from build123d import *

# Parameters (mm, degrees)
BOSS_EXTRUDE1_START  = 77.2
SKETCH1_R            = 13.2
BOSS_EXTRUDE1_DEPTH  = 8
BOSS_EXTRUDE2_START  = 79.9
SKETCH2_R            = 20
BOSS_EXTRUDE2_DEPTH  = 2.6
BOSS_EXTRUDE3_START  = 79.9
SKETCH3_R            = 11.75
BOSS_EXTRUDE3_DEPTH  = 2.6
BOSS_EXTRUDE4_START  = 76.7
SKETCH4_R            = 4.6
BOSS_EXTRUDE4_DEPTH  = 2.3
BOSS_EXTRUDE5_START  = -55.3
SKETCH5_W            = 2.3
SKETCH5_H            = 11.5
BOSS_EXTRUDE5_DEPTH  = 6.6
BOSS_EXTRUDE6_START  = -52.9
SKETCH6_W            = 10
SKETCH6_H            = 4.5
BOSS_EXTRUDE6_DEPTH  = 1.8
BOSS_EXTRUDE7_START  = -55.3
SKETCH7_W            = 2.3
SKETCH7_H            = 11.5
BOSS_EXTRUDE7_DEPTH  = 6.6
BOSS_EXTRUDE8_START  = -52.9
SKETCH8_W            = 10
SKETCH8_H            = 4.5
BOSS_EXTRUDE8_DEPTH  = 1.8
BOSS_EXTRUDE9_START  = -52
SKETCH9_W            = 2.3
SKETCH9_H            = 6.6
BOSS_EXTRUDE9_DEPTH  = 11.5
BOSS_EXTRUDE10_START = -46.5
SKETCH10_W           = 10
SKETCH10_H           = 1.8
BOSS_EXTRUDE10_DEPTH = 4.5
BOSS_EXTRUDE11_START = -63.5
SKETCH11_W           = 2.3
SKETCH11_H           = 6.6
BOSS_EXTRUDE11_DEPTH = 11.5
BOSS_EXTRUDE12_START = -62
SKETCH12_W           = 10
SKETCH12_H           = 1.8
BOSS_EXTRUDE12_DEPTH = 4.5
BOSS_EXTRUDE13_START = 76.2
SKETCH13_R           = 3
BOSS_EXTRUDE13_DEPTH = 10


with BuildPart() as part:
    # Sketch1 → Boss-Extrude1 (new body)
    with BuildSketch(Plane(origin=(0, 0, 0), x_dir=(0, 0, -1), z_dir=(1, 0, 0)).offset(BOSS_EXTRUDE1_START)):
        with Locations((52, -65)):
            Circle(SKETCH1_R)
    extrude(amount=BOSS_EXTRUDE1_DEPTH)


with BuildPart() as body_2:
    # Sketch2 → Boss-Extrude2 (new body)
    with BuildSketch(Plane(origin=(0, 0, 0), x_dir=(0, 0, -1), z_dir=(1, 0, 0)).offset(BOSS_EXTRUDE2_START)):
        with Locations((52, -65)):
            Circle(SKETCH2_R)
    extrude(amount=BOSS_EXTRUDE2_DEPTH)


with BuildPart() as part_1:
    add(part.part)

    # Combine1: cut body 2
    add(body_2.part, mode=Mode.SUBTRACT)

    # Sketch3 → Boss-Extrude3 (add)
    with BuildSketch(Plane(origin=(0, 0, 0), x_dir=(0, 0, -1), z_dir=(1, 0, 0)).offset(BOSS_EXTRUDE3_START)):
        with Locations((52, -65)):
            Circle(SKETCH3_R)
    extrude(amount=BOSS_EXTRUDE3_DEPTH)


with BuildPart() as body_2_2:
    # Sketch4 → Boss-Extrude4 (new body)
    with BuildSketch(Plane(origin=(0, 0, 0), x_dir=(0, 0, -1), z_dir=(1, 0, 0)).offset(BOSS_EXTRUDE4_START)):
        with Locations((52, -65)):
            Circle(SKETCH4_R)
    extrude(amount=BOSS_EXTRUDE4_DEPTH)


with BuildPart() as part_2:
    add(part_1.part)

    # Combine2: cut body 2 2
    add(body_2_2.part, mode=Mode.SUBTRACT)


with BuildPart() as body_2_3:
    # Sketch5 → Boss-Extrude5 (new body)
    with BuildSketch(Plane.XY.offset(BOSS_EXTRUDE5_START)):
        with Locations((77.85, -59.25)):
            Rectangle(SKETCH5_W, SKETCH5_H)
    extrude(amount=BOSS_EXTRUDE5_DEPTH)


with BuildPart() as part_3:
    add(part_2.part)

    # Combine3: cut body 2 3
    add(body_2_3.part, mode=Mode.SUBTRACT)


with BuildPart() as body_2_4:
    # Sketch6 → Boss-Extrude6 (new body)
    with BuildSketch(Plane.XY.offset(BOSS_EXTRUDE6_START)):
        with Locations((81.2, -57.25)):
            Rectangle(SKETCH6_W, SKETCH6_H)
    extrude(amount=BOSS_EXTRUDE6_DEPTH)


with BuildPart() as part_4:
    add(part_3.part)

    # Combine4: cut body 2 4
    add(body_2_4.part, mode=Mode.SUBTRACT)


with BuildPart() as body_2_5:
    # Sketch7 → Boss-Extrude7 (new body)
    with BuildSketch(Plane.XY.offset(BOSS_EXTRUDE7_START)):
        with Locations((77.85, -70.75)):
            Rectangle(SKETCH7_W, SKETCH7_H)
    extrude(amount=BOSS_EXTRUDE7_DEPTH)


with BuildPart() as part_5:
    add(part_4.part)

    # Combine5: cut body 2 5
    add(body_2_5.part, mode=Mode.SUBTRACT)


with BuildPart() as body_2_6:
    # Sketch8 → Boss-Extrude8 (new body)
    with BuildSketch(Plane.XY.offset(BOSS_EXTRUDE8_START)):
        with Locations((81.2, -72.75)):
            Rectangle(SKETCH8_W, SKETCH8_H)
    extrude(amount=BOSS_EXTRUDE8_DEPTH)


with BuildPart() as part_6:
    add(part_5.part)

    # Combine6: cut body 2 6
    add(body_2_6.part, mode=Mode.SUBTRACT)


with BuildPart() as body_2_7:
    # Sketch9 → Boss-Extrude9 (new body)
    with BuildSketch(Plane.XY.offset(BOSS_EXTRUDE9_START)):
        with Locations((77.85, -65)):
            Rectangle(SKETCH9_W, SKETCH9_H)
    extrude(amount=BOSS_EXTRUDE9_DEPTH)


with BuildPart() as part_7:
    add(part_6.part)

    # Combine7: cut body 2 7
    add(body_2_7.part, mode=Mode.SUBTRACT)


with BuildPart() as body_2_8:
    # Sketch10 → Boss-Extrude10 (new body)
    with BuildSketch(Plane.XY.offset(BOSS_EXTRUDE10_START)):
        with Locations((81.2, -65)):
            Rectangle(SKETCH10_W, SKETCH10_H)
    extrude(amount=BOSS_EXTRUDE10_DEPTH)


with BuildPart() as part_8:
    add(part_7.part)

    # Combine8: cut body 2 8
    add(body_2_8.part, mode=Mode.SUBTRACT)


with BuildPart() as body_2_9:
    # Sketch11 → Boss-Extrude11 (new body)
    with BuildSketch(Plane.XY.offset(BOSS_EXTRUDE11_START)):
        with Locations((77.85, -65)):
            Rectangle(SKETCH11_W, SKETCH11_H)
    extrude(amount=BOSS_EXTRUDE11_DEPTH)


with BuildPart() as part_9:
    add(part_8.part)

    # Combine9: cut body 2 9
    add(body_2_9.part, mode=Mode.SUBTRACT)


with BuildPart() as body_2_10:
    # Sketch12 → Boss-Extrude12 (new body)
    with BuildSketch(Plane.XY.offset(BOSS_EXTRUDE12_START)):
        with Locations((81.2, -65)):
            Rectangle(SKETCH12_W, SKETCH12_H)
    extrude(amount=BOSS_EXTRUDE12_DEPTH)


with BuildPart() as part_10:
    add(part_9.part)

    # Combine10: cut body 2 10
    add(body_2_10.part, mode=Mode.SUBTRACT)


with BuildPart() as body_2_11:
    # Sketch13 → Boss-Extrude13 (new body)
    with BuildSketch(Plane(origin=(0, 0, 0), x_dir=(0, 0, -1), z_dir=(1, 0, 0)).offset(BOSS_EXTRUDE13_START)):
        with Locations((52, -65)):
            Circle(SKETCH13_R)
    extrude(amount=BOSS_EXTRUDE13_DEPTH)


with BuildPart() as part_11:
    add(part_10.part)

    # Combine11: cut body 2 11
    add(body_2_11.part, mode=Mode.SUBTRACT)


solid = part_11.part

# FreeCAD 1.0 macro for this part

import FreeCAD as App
import Part
import Sketcher
Q = App.Units.Quantity

doc = App.newDocument("Part")
body = doc.addObject("PartDesign::Body", "Body")

# Sketch on YZ plane
sketch1 = body.newObject("Sketcher::SketchObject", "Sketch")
sketch1.AttachmentSupport = (doc.getObject("YZ_Plane"), [""])
sketch1.MapMode = "FlatFace"
sketch1.AttachmentOffset = App.Placement(App.Vector(0, 0, 77.2), App.Rotation())
sketch1.addGeometry(Part.Circle(App.Vector(-65, -52, 0), App.Vector(0, 0, 1), 13), False)
sketch1.addConstraint([
    Sketcher.Constraint("Diameter", 0, Q("26.4 mm")),
    Sketcher.Constraint("DistanceX", 0, 3, -1, 1, Q("65 mm")),
    Sketcher.Constraint("DistanceY", 0, 3, -1, 1, Q("52 mm")),
])
pad1 = body.newObject("PartDesign::Pad", "Pad")
pad1.Profile = sketch1
pad1.Length = 8
body2 = doc.addObject("PartDesign::Body", "Body001")

# Sketch on YZ plane
sketch2 = body2.newObject("Sketcher::SketchObject", "Sketch001")
sketch2.AttachmentSupport = (doc.getObject("YZ_Plane001"), [""])
sketch2.MapMode = "FlatFace"
sketch2.AttachmentOffset = App.Placement(App.Vector(0, 0, 79.9), App.Rotation())
sketch2.addGeometry(Part.Circle(App.Vector(-65, -52, 0), App.Vector(0, 0, 1), 20), False)
sketch2.addConstraint([
    Sketcher.Constraint("Diameter", 0, Q("40 mm")),
    Sketcher.Constraint("DistanceX", 0, 3, -1, 1, Q("65 mm")),
    Sketcher.Constraint("DistanceY", 0, 3, -1, 1, Q("52 mm")),
])
pad2 = body2.newObject("PartDesign::Pad", "Pad001")
pad2.Profile = sketch2
pad2.Length = 2.6
body.AllowCompound = True
doc.recompute()

boolean = body.newObject("PartDesign::Boolean", "Boolean")
boolean.Type = "Cut"
boolean.addObjects([body2])

# Sketch on YZ plane
sketch3 = body.newObject("Sketcher::SketchObject", "Sketch002")
sketch3.AttachmentSupport = (doc.getObject("YZ_Plane"), [""])
sketch3.MapMode = "FlatFace"
sketch3.AttachmentOffset = App.Placement(App.Vector(0, 0, 79.9), App.Rotation())
sketch3.addGeometry(Part.Circle(App.Vector(-65, -52, 0), App.Vector(0, 0, 1), 12), False)
sketch3.addConstraint([
    Sketcher.Constraint("Diameter", 0, Q("23.5 mm")),
    Sketcher.Constraint("DistanceX", 0, 3, -1, 1, Q("65 mm")),
    Sketcher.Constraint("DistanceY", 0, 3, -1, 1, Q("52 mm")),
])
pad3 = body.newObject("PartDesign::Pad", "Pad002")
pad3.Profile = sketch3
pad3.Length = 2.6
body3 = doc.addObject("PartDesign::Body", "Body002")

# Sketch on YZ plane
sketch4 = body3.newObject("Sketcher::SketchObject", "Sketch003")
sketch4.AttachmentSupport = (doc.getObject("YZ_Plane002"), [""])
sketch4.MapMode = "FlatFace"
sketch4.AttachmentOffset = App.Placement(App.Vector(0, 0, 76.7), App.Rotation())
sketch4.addGeometry(Part.Circle(App.Vector(-65, -52, 0), App.Vector(0, 0, 1), 4.6), False)
sketch4.addConstraint([
    Sketcher.Constraint("Diameter", 0, Q("9.2 mm")),
    Sketcher.Constraint("DistanceX", 0, 3, -1, 1, Q("65 mm")),
    Sketcher.Constraint("DistanceY", 0, 3, -1, 1, Q("52 mm")),
])
pad4 = body3.newObject("PartDesign::Pad", "Pad003")
pad4.Profile = sketch4
pad4.Length = 2.3
doc.recompute()

boolean2 = body.newObject("PartDesign::Boolean", "Boolean001")
boolean2.Type = "Cut"
boolean2.addObjects([body3])
body4 = doc.addObject("PartDesign::Body", "Body003")

# Sketch on XY plane
sketch5 = body4.newObject("Sketcher::SketchObject", "Sketch004")
sketch5.AttachmentSupport = (doc.getObject("XY_Plane003"), [""])
sketch5.MapMode = "FlatFace"
sketch5.AttachmentOffset = App.Placement(App.Vector(0, 0, -55.3), App.Rotation())
sketch5.addGeometry([
    Part.LineSegment(App.Vector(76.7, -53.5, 0), App.Vector(76.7, -65, 0)),
    Part.LineSegment(App.Vector(76.7, -65, 0), App.Vector(79, -65, 0)),
    Part.LineSegment(App.Vector(79, -65, 0), App.Vector(79, -53.5, 0)),
    Part.LineSegment(App.Vector(79, -53.5, 0), App.Vector(76.7, -53.5, 0)),
], False)
sketch5.addConstraint([
    Sketcher.Constraint("Coincident", 0, 2, 1, 1),
    Sketcher.Constraint("Coincident", 1, 2, 2, 1),
    Sketcher.Constraint("Coincident", 2, 2, 3, 1),
    Sketcher.Constraint("Coincident", 3, 2, 0, 1),
    Sketcher.Constraint("Vertical", 0),
    Sketcher.Constraint("Horizontal", 1),
    Sketcher.Constraint("Vertical", 2),
    Sketcher.Constraint("Horizontal", 3),
    Sketcher.Constraint("DistanceX", 1, 1, 1, 2, Q("2.3 mm")),
    Sketcher.Constraint("DistanceY", 0, 2, 0, 1, Q("11.5 mm")),
    Sketcher.Constraint("DistanceY", 0, 2, -1, 1, Q("65 mm")),
    Sketcher.Constraint("DistanceX", -1, 1, 1, 2, Q("79 mm")),
])
pad5 = body4.newObject("PartDesign::Pad", "Pad004")
pad5.Profile = sketch5
pad5.Length = 6.6
doc.recompute()

boolean3 = body.newObject("PartDesign::Boolean", "Boolean002")
boolean3.Type = "Cut"
boolean3.addObjects([body4])
body5 = doc.addObject("PartDesign::Body", "Body004")

# Sketch on XY plane
sketch6 = body5.newObject("Sketcher::SketchObject", "Sketch005")
sketch6.AttachmentSupport = (doc.getObject("XY_Plane004"), [""])
sketch6.MapMode = "FlatFace"
sketch6.AttachmentOffset = App.Placement(App.Vector(0, 0, -52.9), App.Rotation())
sketch6.addGeometry([
    Part.LineSegment(App.Vector(76.2, -55, 0), App.Vector(76.2, -59.5, 0)),
    Part.LineSegment(App.Vector(76.2, -59.5, 0), App.Vector(86.2, -59.5, 0)),
    Part.LineSegment(App.Vector(86.2, -59.5, 0), App.Vector(86.2, -55, 0)),
    Part.LineSegment(App.Vector(86.2, -55, 0), App.Vector(76.2, -55, 0)),
], False)
sketch6.addConstraint([
    Sketcher.Constraint("Coincident", 0, 2, 1, 1),
    Sketcher.Constraint("Coincident", 1, 2, 2, 1),
    Sketcher.Constraint("Coincident", 2, 2, 3, 1),
    Sketcher.Constraint("Coincident", 3, 2, 0, 1),
    Sketcher.Constraint("Vertical", 0),
    Sketcher.Constraint("Horizontal", 1),
    Sketcher.Constraint("Vertical", 2),
    Sketcher.Constraint("Horizontal", 3),
    Sketcher.Constraint("DistanceX", 1, 1, 1, 2, Q("10 mm")),
    Sketcher.Constraint("DistanceY", 0, 2, 0, 1, Q("4.5 mm")),
    Sketcher.Constraint("DistanceY", 2, 2, -1, 1, Q("55 mm")),
    Sketcher.Constraint("DistanceX", -1, 1, 0, 2, Q("76.2 mm")),
])
pad6 = body5.newObject("PartDesign::Pad", "Pad005")
pad6.Profile = sketch6
pad6.Length = 1.8
doc.recompute()

boolean4 = body.newObject("PartDesign::Boolean", "Boolean003")
boolean4.Type = "Cut"
boolean4.addObjects([body5])
body6 = doc.addObject("PartDesign::Body", "Body005")

# Sketch on XY plane
sketch7 = body6.newObject("Sketcher::SketchObject", "Sketch006")
sketch7.AttachmentSupport = (doc.getObject("XY_Plane005"), [""])
sketch7.MapMode = "FlatFace"
sketch7.AttachmentOffset = App.Placement(App.Vector(0, 0, -55.3), App.Rotation())
sketch7.addGeometry([
    Part.LineSegment(App.Vector(76.7, -65, 0), App.Vector(76.7, -76.5, 0)),
    Part.LineSegment(App.Vector(76.7, -76.5, 0), App.Vector(79, -76.5, 0)),
    Part.LineSegment(App.Vector(79, -76.5, 0), App.Vector(79, -65, 0)),
    Part.LineSegment(App.Vector(79, -65, 0), App.Vector(76.7, -65, 0)),
], False)
sketch7.addConstraint([
    Sketcher.Constraint("Coincident", 0, 2, 1, 1),
    Sketcher.Constraint("Coincident", 1, 2, 2, 1),
    Sketcher.Constraint("Coincident", 2, 2, 3, 1),
    Sketcher.Constraint("Coincident", 3, 2, 0, 1),
    Sketcher.Constraint("Vertical", 0),
    Sketcher.Constraint("Horizontal", 1),
    Sketcher.Constraint("Vertical", 2),
    Sketcher.Constraint("Horizontal", 3),
    Sketcher.Constraint("DistanceX", 1, 1, 1, 2, Q("2.3 mm")),
    Sketcher.Constraint("DistanceY", 0, 2, 0, 1, Q("11.5 mm")),
    Sketcher.Constraint("DistanceX", -1, 1, 1, 2, Q("79 mm")),
    Sketcher.Constraint("DistanceY", 2, 2, -1, 1, Q("65 mm")),
])
pad7 = body6.newObject("PartDesign::Pad", "Pad006")
pad7.Profile = sketch7
pad7.Length = 6.6
doc.recompute()

boolean5 = body.newObject("PartDesign::Boolean", "Boolean004")
boolean5.Type = "Cut"
boolean5.addObjects([body6])
body7 = doc.addObject("PartDesign::Body", "Body006")

# Sketch on XY plane
sketch8 = body7.newObject("Sketcher::SketchObject", "Sketch007")
sketch8.AttachmentSupport = (doc.getObject("XY_Plane006"), [""])
sketch8.MapMode = "FlatFace"
sketch8.AttachmentOffset = App.Placement(App.Vector(0, 0, -52.9), App.Rotation())
sketch8.addGeometry([
    Part.LineSegment(App.Vector(76.2, -70.5, 0), App.Vector(76.2, -75, 0)),
    Part.LineSegment(App.Vector(76.2, -75, 0), App.Vector(86.2, -75, 0)),
    Part.LineSegment(App.Vector(86.2, -75, 0), App.Vector(86.2, -70.5, 0)),
    Part.LineSegment(App.Vector(86.2, -70.5, 0), App.Vector(76.2, -70.5, 0)),
], False)
sketch8.addConstraint([
    Sketcher.Constraint("Coincident", 0, 2, 1, 1),
    Sketcher.Constraint("Coincident", 1, 2, 2, 1),
    Sketcher.Constraint("Coincident", 2, 2, 3, 1),
    Sketcher.Constraint("Coincident", 3, 2, 0, 1),
    Sketcher.Constraint("Vertical", 0),
    Sketcher.Constraint("Horizontal", 1),
    Sketcher.Constraint("Vertical", 2),
    Sketcher.Constraint("Horizontal", 3),
    Sketcher.Constraint("DistanceX", 1, 1, 1, 2, Q("10 mm")),
    Sketcher.Constraint("DistanceY", 0, 2, 0, 1, Q("4.5 mm")),
    Sketcher.Constraint("DistanceY", 0, 2, -1, 1, Q("75 mm")),
    Sketcher.Constraint("DistanceX", -1, 1, 0, 2, Q("76.2 mm")),
])
pad8 = body7.newObject("PartDesign::Pad", "Pad007")
pad8.Profile = sketch8
pad8.Length = 1.8
doc.recompute()

boolean6 = body.newObject("PartDesign::Boolean", "Boolean005")
boolean6.Type = "Cut"
boolean6.addObjects([body7])
body8 = doc.addObject("PartDesign::Body", "Body007")

# Sketch on XY plane
sketch9 = body8.newObject("Sketcher::SketchObject", "Sketch008")
sketch9.AttachmentSupport = (doc.getObject("XY_Plane007"), [""])
sketch9.MapMode = "FlatFace"
sketch9.AttachmentOffset = App.Placement(App.Vector(0, 0, -52), App.Rotation())
sketch9.addGeometry([
    Part.LineSegment(App.Vector(76.7, -61.7, 0), App.Vector(76.7, -68.3, 0)),
    Part.LineSegment(App.Vector(76.7, -68.3, 0), App.Vector(79, -68.3, 0)),
    Part.LineSegment(App.Vector(79, -68.3, 0), App.Vector(79, -61.7, 0)),
    Part.LineSegment(App.Vector(79, -61.7, 0), App.Vector(76.7, -61.7, 0)),
], False)
sketch9.addConstraint([
    Sketcher.Constraint("Coincident", 0, 2, 1, 1),
    Sketcher.Constraint("Coincident", 1, 2, 2, 1),
    Sketcher.Constraint("Coincident", 2, 2, 3, 1),
    Sketcher.Constraint("Coincident", 3, 2, 0, 1),
    Sketcher.Constraint("Vertical", 0),
    Sketcher.Constraint("Horizontal", 1),
    Sketcher.Constraint("Vertical", 2),
    Sketcher.Constraint("Horizontal", 3),
    Sketcher.Constraint("DistanceX", 1, 1, 1, 2, Q("2.3 mm")),
    Sketcher.Constraint("DistanceY", 0, 2, 0, 1, Q("6.6 mm")),
    Sketcher.Constraint("DistanceX", -1, 1, 1, 2, Q("79 mm")),
    Sketcher.Constraint("DistanceY", 0, 2, -1, 1, Q("68.3 mm")),
])
pad9 = body8.newObject("PartDesign::Pad", "Pad008")
pad9.Profile = sketch9
pad9.Length = 11.5
doc.recompute()

boolean7 = body.newObject("PartDesign::Boolean", "Boolean006")
boolean7.Type = "Cut"
boolean7.addObjects([body8])
body9 = doc.addObject("PartDesign::Body", "Body008")

# Sketch on XY plane
sketch10 = body9.newObject("Sketcher::SketchObject", "Sketch009")
sketch10.AttachmentSupport = (doc.getObject("XY_Plane008"), [""])
sketch10.MapMode = "FlatFace"
sketch10.AttachmentOffset = App.Placement(App.Vector(0, 0, -46.5), App.Rotation())
sketch10.addGeometry([
    Part.LineSegment(App.Vector(76.2, -64.1, 0), App.Vector(76.2, -65.9, 0)),
    Part.LineSegment(App.Vector(76.2, -65.9, 0), App.Vector(86.2, -65.9, 0)),
    Part.LineSegment(App.Vector(86.2, -65.9, 0), App.Vector(86.2, -64.1, 0)),
    Part.LineSegment(App.Vector(86.2, -64.1, 0), App.Vector(76.2, -64.1, 0)),
], False)
sketch10.addConstraint([
    Sketcher.Constraint("Coincident", 0, 2, 1, 1),
    Sketcher.Constraint("Coincident", 1, 2, 2, 1),
    Sketcher.Constraint("Coincident", 2, 2, 3, 1),
    Sketcher.Constraint("Coincident", 3, 2, 0, 1),
    Sketcher.Constraint("Vertical", 0),
    Sketcher.Constraint("Horizontal", 1),
    Sketcher.Constraint("Vertical", 2),
    Sketcher.Constraint("Horizontal", 3),
    Sketcher.Constraint("DistanceX", 1, 1, 1, 2, Q("10 mm")),
    Sketcher.Constraint("DistanceY", 0, 2, 0, 1, Q("1.8 mm")),
    Sketcher.Constraint("DistanceX", -1, 1, 0, 2, Q("76.2 mm")),
    Sketcher.Constraint("DistanceY", 0, 2, -1, 1, Q("65.9 mm")),
])
pad10 = body9.newObject("PartDesign::Pad", "Pad009")
pad10.Profile = sketch10
pad10.Length = 4.5
doc.recompute()

boolean8 = body.newObject("PartDesign::Boolean", "Boolean007")
boolean8.Type = "Cut"
boolean8.addObjects([body9])
body10 = doc.addObject("PartDesign::Body", "Body009")

# Sketch on XY plane
sketch11 = body10.newObject("Sketcher::SketchObject", "Sketch010")
sketch11.AttachmentSupport = (doc.getObject("XY_Plane009"), [""])
sketch11.MapMode = "FlatFace"
sketch11.AttachmentOffset = App.Placement(App.Vector(0, 0, -63.5), App.Rotation())
sketch11.addGeometry([
    Part.LineSegment(App.Vector(76.7, -61.7, 0), App.Vector(76.7, -68.3, 0)),
    Part.LineSegment(App.Vector(76.7, -68.3, 0), App.Vector(79, -68.3, 0)),
    Part.LineSegment(App.Vector(79, -68.3, 0), App.Vector(79, -61.7, 0)),
    Part.LineSegment(App.Vector(79, -61.7, 0), App.Vector(76.7, -61.7, 0)),
], False)
sketch11.addConstraint([
    Sketcher.Constraint("Coincident", 0, 2, 1, 1),
    Sketcher.Constraint("Coincident", 1, 2, 2, 1),
    Sketcher.Constraint("Coincident", 2, 2, 3, 1),
    Sketcher.Constraint("Coincident", 3, 2, 0, 1),
    Sketcher.Constraint("Vertical", 0),
    Sketcher.Constraint("Horizontal", 1),
    Sketcher.Constraint("Vertical", 2),
    Sketcher.Constraint("Horizontal", 3),
    Sketcher.Constraint("DistanceX", 1, 1, 1, 2, Q("2.3 mm")),
    Sketcher.Constraint("DistanceY", 0, 2, 0, 1, Q("6.6 mm")),
    Sketcher.Constraint("DistanceX", -1, 1, 1, 2, Q("79 mm")),
    Sketcher.Constraint("DistanceY", 0, 2, -1, 1, Q("68.3 mm")),
])
pad11 = body10.newObject("PartDesign::Pad", "Pad010")
pad11.Profile = sketch11
pad11.Length = 11.5
doc.recompute()

boolean9 = body.newObject("PartDesign::Boolean", "Boolean008")
boolean9.Type = "Cut"
boolean9.addObjects([body10])
body11 = doc.addObject("PartDesign::Body", "Body010")

# Sketch on XY plane
sketch12 = body11.newObject("Sketcher::SketchObject", "Sketch011")
sketch12.AttachmentSupport = (doc.getObject("XY_Plane010"), [""])
sketch12.MapMode = "FlatFace"
sketch12.AttachmentOffset = App.Placement(App.Vector(0, 0, -62), App.Rotation())
sketch12.addGeometry([
    Part.LineSegment(App.Vector(76.2, -64.1, 0), App.Vector(76.2, -65.9, 0)),
    Part.LineSegment(App.Vector(76.2, -65.9, 0), App.Vector(86.2, -65.9, 0)),
    Part.LineSegment(App.Vector(86.2, -65.9, 0), App.Vector(86.2, -64.1, 0)),
    Part.LineSegment(App.Vector(86.2, -64.1, 0), App.Vector(76.2, -64.1, 0)),
], False)
sketch12.addConstraint([
    Sketcher.Constraint("Coincident", 0, 2, 1, 1),
    Sketcher.Constraint("Coincident", 1, 2, 2, 1),
    Sketcher.Constraint("Coincident", 2, 2, 3, 1),
    Sketcher.Constraint("Coincident", 3, 2, 0, 1),
    Sketcher.Constraint("Vertical", 0),
    Sketcher.Constraint("Horizontal", 1),
    Sketcher.Constraint("Vertical", 2),
    Sketcher.Constraint("Horizontal", 3),
    Sketcher.Constraint("DistanceX", 1, 1, 1, 2, Q("10 mm")),
    Sketcher.Constraint("DistanceY", 0, 2, 0, 1, Q("1.8 mm")),
    Sketcher.Constraint("DistanceX", -1, 1, 0, 2, Q("76.2 mm")),
    Sketcher.Constraint("DistanceY", 0, 2, -1, 1, Q("65.9 mm")),
])
pad12 = body11.newObject("PartDesign::Pad", "Pad011")
pad12.Profile = sketch12
pad12.Length = 4.5
doc.recompute()

boolean10 = body.newObject("PartDesign::Boolean", "Boolean009")
boolean10.Type = "Cut"
boolean10.addObjects([body11])
body12 = doc.addObject("PartDesign::Body", "Body011")

# Sketch on YZ plane
sketch13 = body12.newObject("Sketcher::SketchObject", "Sketch012")
sketch13.AttachmentSupport = (doc.getObject("YZ_Plane011"), [""])
sketch13.MapMode = "FlatFace"
sketch13.AttachmentOffset = App.Placement(App.Vector(0, 0, 76.2), App.Rotation())
sketch13.addGeometry(Part.Circle(App.Vector(-65, -52, 0), App.Vector(0, 0, 1), 3), False)
sketch13.addConstraint([
    Sketcher.Constraint("Diameter", 0, Q("6 mm")),
    Sketcher.Constraint("DistanceX", 0, 3, -1, 1, Q("65 mm")),
    Sketcher.Constraint("DistanceY", 0, 3, -1, 1, Q("52 mm")),
])
pad13 = body12.newObject("PartDesign::Pad", "Pad012")
pad13.Profile = sketch13
pad13.Length = 10
doc.recompute()

boolean11 = body.newObject("PartDesign::Boolean", "Boolean010")
boolean11.Type = "Cut"
boolean11.addObjects([body12])

doc.recompute()
